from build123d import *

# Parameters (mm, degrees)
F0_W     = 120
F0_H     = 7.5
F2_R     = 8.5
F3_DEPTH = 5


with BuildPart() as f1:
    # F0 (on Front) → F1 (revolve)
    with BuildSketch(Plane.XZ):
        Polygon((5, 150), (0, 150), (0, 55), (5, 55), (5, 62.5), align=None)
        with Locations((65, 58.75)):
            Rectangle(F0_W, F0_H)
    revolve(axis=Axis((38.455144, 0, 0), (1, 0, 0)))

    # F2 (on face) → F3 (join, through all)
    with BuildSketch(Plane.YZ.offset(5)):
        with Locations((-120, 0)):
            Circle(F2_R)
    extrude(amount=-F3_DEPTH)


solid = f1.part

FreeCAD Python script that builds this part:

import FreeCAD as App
import Part
import Sketcher
from FreeCAD import Vector
Q = App.Units.Quantity


def add_polygon(sketch, points):
    """Adds a closed chain of lines whose ends are joined by coincident constraints."""
    first, n = sketch.GeometryCount, len(points)
    for a, b in zip(points, points[1:] + points[:1]):
        sketch.addGeometry(Part.LineSegment(App.Vector(*a, 0), App.Vector(*b, 0)), False)
    for i in range(n):
        sketch.addConstraint(Sketcher.Constraint("Coincident", first + i, 2, first + (i + 1) % n, 1))

doc = App.newDocument("Part")
body = doc.addObject("PartDesign::Body", "Body")

# Sketch on XZ plane
sketch1 = body.newObject("Sketcher::SketchObject", "Sketch")
sketch1.AttachmentSupport = (doc.getObject("XZ_Plane"), [""])
sketch1.MapMode = "FlatFace"
add_polygon(sketch1, [(5, 150), (0, 150), (0, 55), (125, 55), (125, 62), (5, 62)])  # lines 0-5
sketch1.addConstraint([
    Sketcher.Constraint("Horizontal", 0),
    Sketcher.Constraint("Vertical", 1),
    Sketcher.Constraint("Horizontal", 2),
    Sketcher.Constraint("Vertical", 3),
    Sketcher.Constraint("Horizontal", 4),
    Sketcher.Constraint("Vertical", 5),
    Sketcher.Constraint("PointOnObject", 0, 2, -2),
    Sketcher.Constraint("DistanceX", 0, 2, 0, 1, Q("5 mm")),
    Sketcher.Constraint("DistanceX", 2, 1, 2, 2, Q("125 mm")),
    Sketcher.Constraint("DistanceY", 1, 2, 1, 1, Q("95 mm")),
    Sketcher.Constraint("DistanceY", 3, 1, 3, 2, Q("7.5 mm")),
    Sketcher.Constraint("DistanceY", -1, 1, 0, 2, Q("150 mm")),
])
revolution = body.newObject("PartDesign::Revolution", "Revolution")
revolution.Profile = sketch1
revolution.ReferenceAxis = (sketch1, ["H_Axis"])
revolution.Angle = 360

# Sketch on YZ plane
sketch2 = body.newObject("Sketcher::SketchObject", "Sketch001")
sketch2.AttachmentSupport = (doc.getObject("YZ_Plane"), [""])
sketch2.MapMode = "FlatFace"
sketch2.AttachmentOffset = App.Placement(Vector(0, 0, 5), App.Rotation())
sketch2.addGeometry(Part.Circle(Vector(-120, 0, 0), Vector(0, 0, 1), 8), False)
sketch2.addConstraint([
    Sketcher.Constraint("PointOnObject", 0, 3, -1),
    Sketcher.Constraint("Diameter", 0, Q("17 mm")),
    Sketcher.Constraint("DistanceX", 0, 3, -1, 1, Q("120 mm")),
])
pad1 = body.newObject("PartDesign::Pad", "Pad")
pad1.Profile = sketch2
pad1.Type = "UpToLast"
pad1.Reversed = True

doc.recompute()
